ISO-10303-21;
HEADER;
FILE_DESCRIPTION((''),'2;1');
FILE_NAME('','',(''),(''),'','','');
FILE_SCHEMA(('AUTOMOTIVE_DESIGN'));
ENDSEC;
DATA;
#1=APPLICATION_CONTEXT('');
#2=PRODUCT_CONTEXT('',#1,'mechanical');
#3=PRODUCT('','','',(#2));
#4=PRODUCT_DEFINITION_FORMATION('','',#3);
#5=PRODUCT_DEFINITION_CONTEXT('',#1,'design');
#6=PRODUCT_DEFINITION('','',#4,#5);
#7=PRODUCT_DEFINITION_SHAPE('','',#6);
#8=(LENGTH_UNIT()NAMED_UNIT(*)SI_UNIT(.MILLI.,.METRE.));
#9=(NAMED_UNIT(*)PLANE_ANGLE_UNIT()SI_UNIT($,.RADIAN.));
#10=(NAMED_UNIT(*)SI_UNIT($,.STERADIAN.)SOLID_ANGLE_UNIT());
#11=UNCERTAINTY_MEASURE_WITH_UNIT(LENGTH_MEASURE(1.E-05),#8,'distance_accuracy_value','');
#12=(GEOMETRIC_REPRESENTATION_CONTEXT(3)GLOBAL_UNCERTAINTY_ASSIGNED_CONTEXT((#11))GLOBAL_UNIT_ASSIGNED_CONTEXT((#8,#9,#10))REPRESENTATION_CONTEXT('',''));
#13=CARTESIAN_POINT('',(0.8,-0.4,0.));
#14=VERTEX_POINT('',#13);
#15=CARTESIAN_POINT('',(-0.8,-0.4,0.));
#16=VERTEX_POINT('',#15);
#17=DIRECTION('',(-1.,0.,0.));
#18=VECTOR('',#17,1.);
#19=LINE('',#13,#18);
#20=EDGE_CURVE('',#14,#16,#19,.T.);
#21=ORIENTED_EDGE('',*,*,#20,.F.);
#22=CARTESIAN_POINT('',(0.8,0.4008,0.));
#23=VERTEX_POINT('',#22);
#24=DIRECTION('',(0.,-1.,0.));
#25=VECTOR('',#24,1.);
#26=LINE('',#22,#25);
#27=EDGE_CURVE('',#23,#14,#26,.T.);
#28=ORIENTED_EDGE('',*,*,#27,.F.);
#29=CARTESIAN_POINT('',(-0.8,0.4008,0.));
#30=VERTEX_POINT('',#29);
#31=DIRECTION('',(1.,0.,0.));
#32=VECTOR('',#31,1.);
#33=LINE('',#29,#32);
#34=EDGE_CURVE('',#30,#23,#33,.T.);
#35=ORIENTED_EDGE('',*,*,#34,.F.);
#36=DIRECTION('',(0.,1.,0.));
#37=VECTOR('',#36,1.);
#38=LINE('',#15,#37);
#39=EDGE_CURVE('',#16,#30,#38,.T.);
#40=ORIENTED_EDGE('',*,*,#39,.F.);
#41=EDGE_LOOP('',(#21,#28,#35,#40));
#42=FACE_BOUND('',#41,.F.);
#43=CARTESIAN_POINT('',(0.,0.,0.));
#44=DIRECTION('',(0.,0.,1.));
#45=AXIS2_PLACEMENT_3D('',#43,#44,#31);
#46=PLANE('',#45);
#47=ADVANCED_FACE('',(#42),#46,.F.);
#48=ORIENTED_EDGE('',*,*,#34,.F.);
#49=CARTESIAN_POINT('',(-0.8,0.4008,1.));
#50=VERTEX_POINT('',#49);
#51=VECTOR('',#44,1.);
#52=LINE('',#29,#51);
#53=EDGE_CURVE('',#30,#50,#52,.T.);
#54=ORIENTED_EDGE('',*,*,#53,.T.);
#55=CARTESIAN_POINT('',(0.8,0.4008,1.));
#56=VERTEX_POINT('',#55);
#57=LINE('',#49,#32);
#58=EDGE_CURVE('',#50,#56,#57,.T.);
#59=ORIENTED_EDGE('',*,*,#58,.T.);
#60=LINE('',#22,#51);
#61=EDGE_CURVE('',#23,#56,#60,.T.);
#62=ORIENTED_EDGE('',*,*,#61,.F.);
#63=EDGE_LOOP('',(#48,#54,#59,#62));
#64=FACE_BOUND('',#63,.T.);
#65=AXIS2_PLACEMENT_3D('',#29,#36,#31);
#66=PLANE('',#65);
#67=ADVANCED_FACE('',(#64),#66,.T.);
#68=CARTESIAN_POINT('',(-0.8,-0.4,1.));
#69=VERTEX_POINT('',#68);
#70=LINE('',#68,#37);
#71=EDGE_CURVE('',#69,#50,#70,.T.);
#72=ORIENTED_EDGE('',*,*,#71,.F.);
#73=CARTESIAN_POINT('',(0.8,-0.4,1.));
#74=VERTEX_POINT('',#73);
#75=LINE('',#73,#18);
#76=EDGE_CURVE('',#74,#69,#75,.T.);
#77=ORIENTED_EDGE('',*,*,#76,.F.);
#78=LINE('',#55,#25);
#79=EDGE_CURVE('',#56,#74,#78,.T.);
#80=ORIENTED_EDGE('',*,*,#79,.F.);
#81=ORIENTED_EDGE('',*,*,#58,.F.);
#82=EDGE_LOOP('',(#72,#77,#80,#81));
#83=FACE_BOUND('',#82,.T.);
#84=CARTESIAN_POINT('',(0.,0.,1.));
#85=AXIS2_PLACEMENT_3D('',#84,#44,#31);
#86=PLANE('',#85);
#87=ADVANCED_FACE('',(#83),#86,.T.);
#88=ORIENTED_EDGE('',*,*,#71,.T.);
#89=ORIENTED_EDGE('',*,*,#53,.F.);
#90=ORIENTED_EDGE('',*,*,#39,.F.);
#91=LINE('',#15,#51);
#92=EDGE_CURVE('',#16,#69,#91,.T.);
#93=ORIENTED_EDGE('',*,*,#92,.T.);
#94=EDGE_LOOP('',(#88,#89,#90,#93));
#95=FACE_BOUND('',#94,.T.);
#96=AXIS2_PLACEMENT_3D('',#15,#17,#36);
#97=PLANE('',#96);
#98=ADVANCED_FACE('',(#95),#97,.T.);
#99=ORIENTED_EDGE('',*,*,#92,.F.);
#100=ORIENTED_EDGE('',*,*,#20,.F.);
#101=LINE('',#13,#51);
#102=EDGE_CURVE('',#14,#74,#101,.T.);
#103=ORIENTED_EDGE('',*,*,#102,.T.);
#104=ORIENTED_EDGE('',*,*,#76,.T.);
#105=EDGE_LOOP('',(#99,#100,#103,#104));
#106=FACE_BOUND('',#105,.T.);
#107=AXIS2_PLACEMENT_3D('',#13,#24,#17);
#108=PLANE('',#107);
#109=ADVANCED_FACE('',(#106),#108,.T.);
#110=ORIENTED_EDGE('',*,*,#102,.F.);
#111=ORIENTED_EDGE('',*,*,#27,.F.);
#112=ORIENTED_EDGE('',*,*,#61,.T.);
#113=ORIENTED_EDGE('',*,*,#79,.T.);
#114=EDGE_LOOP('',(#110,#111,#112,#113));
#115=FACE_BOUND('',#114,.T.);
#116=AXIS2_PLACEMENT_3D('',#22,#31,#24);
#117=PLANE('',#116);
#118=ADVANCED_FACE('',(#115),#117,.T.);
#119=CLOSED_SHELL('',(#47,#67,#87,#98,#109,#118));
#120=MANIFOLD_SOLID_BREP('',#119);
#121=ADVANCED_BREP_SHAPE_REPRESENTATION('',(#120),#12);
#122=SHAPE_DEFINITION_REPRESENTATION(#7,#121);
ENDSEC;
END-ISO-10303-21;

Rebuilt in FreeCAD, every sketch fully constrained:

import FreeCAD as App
import Part
import Sketcher


def add_polygon(sketch, points):
    """Adds a closed chain of lines whose ends are joined by coincident constraints."""
    first, n = sketch.GeometryCount, len(points)
    for a, b in zip(points, points[1:] + points[:1]):
        sketch.addGeometry(Part.LineSegment(App.Vector(*a, 0), App.Vector(*b, 0)), False)
    for i in range(n):
        sketch.addConstraint(Sketcher.Constraint("Coincident", first + i, 2, first + (i + 1) % n, 1))

doc = App.newDocument("Part")
params = doc.addObject("Spreadsheet::Sheet", "Params")
for row, (alias, value) in enumerate([
    ("sketch1_width", "1.6 mm"),
    ("pad1_length", "1 mm"),
], start=1):
    params.set(f"A{row}", alias)
    params.set(f"B{row}", "=" + value)
    params.setAlias(f"B{row}", alias)

body = doc.addObject("PartDesign::Body", "Body")

# Sketch on XY plane
sketch1 = body.newObject("Sketcher::SketchObject", "Sketch")
sketch1.AttachmentSupport = (doc.getObject("XY_Plane"), [""])
sketch1.MapMode = "FlatFace"
add_polygon(sketch1, [(0.8, 0.4), (-0.8, 0.4), (-0.8, -0.4), (0.8, -0.4)])  # lines 0-3
sketch1.addConstraint(Sketcher.Constraint("Horizontal", 0))
sketch1.addConstraint(Sketcher.Constraint("Vertical", 1))
sketch1.addConstraint(Sketcher.Constraint("Horizontal", 2))
sketch1.addConstraint(Sketcher.Constraint("Vertical", 3))
sketch1.addConstraint(Sketcher.Constraint("DistanceX", 0, 2, 0, 1, 1.6))
sketch1.addConstraint(Sketcher.Constraint("DistanceX", 0, 2, -1, 1, 0.8))
sketch1.addConstraint(Sketcher.Constraint("DistanceY", 1, 2, -1, 1, 0.4))
sketch1.addConstraint(Sketcher.Constraint("DistanceY", 1, 2, 1, 1, 0.8008))
sketch1.setExpression("Constraints[8]", "Params.sketch1_width")
pad1 = body.newObject("PartDesign::Pad", "Pad")
pad1.Profile = sketch1
pad1.setExpression("Length", "Params.pad1_length")

doc.recompute()
